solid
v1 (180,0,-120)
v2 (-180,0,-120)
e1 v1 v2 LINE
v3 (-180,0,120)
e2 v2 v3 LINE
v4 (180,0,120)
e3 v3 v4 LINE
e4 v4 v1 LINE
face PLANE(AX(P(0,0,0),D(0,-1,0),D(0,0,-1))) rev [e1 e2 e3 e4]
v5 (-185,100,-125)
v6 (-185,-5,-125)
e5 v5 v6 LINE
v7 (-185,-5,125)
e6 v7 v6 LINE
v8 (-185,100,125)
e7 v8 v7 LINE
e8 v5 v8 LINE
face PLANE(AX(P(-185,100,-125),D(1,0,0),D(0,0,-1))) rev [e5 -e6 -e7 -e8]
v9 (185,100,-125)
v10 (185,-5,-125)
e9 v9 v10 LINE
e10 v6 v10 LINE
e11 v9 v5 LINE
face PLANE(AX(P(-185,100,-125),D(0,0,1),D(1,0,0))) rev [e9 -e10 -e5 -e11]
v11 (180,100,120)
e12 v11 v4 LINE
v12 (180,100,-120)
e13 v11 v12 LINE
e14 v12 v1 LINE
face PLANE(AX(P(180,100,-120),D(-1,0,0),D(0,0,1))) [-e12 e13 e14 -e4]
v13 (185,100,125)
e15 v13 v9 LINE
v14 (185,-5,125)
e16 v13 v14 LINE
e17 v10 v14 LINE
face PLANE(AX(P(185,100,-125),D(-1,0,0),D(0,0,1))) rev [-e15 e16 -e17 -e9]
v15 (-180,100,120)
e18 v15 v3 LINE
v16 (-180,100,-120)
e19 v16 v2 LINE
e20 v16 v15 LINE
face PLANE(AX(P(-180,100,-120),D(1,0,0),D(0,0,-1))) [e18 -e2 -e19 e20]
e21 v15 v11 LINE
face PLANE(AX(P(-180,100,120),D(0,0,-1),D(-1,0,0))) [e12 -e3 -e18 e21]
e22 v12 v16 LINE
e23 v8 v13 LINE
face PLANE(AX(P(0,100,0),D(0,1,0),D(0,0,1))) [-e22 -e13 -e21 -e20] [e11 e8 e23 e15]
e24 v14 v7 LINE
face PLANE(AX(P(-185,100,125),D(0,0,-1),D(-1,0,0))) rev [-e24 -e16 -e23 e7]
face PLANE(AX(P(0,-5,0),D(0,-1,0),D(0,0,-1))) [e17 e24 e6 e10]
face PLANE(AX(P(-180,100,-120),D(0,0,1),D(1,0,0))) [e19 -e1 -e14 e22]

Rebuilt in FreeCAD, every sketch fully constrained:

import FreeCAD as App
import Part
import Sketcher
Q = App.Units.Quantity

doc = App.newDocument("Part")
body = doc.addObject("PartDesign::Body", "Body")

# Sketch on XZ plane
sketch1 = body.newObject("Sketcher::SketchObject", "Sketch")
sketch1.AttachmentSupport = (doc.getObject("XZ_Plane"), [""])
sketch1.MapMode = "FlatFace"
sketch1.addGeometry(Part.LineSegment(App.Vector(-185, -125, 0), App.Vector(-185, 125, 0)), False)
sketch1.addGeometry(Part.LineSegment(App.Vector(-185, 125, 0), App.Vector(185, 125, 0)), False)
sketch1.addGeometry(Part.LineSegment(App.Vector(185, 125, 0), App.Vector(185, -125, 0)), False)
sketch1.addGeometry(Part.LineSegment(App.Vector(185, -125, 0), App.Vector(-185, -125, 0)), False)
sketch1.addGeometry(Part.LineSegment(App.Vector(180, 120, 0), App.Vector(-180, 120, 0)), False)
sketch1.addGeometry(Part.LineSegment(App.Vector(-180, 120, 0), App.Vector(-180, -120, 0)), False)
sketch1.addGeometry(Part.LineSegment(App.Vector(-180, -120, 0), App.Vector(180, -120, 0)), False)
sketch1.addGeometry(Part.LineSegment(App.Vector(180, -120, 0), App.Vector(180, 120, 0)), False)
sketch1.addConstraint(Sketcher.Constraint("Coincident", 0, 2, 1, 1))
sketch1.addConstraint(Sketcher.Constraint("Coincident", 1, 2, 2, 1))
sketch1.addConstraint(Sketcher.Constraint("Coincident", 2, 2, 3, 1))
sketch1.addConstraint(Sketcher.Constraint("Coincident", 3, 2, 0, 1))
sketch1.addConstraint(Sketcher.Constraint("Coincident", 4, 2, 5, 1))
sketch1.addConstraint(Sketcher.Constraint("Coincident", 5, 2, 6, 1))
sketch1.addConstraint(Sketcher.Constraint("Coincident", 6, 2, 7, 1))
sketch1.addConstraint(Sketcher.Constraint("Coincident", 7, 2, 4, 1))
sketch1.addConstraint(Sketcher.Constraint("Vertical", 0))
sketch1.addConstraint(Sketcher.Constraint("Horizontal", 1))
sketch1.addConstraint(Sketcher.Constraint("Vertical", 2))
sketch1.addConstraint(Sketcher.Constraint("Horizontal", 3))
sketch1.addConstraint(Sketcher.Constraint("Horizontal", 4))
sketch1.addConstraint(Sketcher.Constraint("Vertical", 5))
sketch1.addConstraint(Sketcher.Constraint("Horizontal", 6))
sketch1.addConstraint(Sketcher.Constraint("Vertical", 7))
sketch1.addConstraint(Sketcher.Constraint("Symmetric", 0, 2, 2, 2, -1, 1))
sketch1.addConstraint(Sketcher.Constraint("Symmetric", 4, 2, 6, 2, -1, 1))
sketch1.addConstraint(Sketcher.Constraint("DistanceX", 1, 1, 1, 2, Q("370 mm")))
sketch1.addConstraint(Sketcher.Constraint("DistanceX", 4, 2, 4, 1, Q("360 mm")))
sketch1.addConstraint(Sketcher.Constraint("DistanceY", 0, 1, 0, 2, Q("250 mm")))
sketch1.addConstraint(Sketcher.Constraint("DistanceY", 5, 2, 5, 1, Q("240 mm")))
pad1 = body.newObject("PartDesign::Pad", "Pad")
pad1.Profile = sketch1
pad1.Length = 100
pad1.Reversed = True

# Sketch on XZ plane
sketch2 = body.newObject("Sketcher::SketchObject", "Sketch001")
sketch2.AttachmentSupport = (doc.getObject("XZ_Plane"), [""])
sketch2.MapMode = "FlatFace"
sketch2.addGeometry(Part.LineSegment(App.Vector(-185, 125, 0), App.Vector(-185, -125, 0)), False)
sketch2.addGeometry(Part.LineSegment(App.Vector(-185, -125, 0), App.Vector(185, -125, 0)), False)
sketch2.addGeometry(Part.LineSegment(App.Vector(185, -125, 0), App.Vector(185, 125, 0)), False)
sketch2.addGeometry(Part.LineSegment(App.Vector(185, 125, 0), App.Vector(-185, 125, 0)), False)
sketch2.addConstraint(Sketcher.Constraint("Coincident", 0, 2, 1, 1))
sketch2.addConstraint(Sketcher.Constraint("Coincident", 1, 2, 2, 1))
sketch2.addConstraint(Sketcher.Constraint("Coincident", 2, 2, 3, 1))
sketch2.addConstraint(Sketcher.Constraint("Coincident", 3, 2, 0, 1))
sketch2.addConstraint(Sketcher.Constraint("Vertical", 0))
sketch2.addConstraint(Sketcher.Constraint("Horizontal", 1))
sketch2.addConstraint(Sketcher.Constraint("Vertical", 2))
sketch2.addConstraint(Sketcher.Constraint("Horizontal", 3))
sketch2.addConstraint(Sketcher.Constraint("Symmetric", 0, 2, 2, 2, -1, 1))
sketch2.addConstraint(Sketcher.Constraint("DistanceX", 1, 1, 1, 2, Q("370 mm")))
sketch2.addConstraint(Sketcher.Constraint("DistanceY", 0, 2, 0, 1, Q("250 mm")))
pad2 = body.newObject("PartDesign::Pad", "Pad001")
pad2.Profile = sketch2
pad2.Length = 5

doc.recompute()
